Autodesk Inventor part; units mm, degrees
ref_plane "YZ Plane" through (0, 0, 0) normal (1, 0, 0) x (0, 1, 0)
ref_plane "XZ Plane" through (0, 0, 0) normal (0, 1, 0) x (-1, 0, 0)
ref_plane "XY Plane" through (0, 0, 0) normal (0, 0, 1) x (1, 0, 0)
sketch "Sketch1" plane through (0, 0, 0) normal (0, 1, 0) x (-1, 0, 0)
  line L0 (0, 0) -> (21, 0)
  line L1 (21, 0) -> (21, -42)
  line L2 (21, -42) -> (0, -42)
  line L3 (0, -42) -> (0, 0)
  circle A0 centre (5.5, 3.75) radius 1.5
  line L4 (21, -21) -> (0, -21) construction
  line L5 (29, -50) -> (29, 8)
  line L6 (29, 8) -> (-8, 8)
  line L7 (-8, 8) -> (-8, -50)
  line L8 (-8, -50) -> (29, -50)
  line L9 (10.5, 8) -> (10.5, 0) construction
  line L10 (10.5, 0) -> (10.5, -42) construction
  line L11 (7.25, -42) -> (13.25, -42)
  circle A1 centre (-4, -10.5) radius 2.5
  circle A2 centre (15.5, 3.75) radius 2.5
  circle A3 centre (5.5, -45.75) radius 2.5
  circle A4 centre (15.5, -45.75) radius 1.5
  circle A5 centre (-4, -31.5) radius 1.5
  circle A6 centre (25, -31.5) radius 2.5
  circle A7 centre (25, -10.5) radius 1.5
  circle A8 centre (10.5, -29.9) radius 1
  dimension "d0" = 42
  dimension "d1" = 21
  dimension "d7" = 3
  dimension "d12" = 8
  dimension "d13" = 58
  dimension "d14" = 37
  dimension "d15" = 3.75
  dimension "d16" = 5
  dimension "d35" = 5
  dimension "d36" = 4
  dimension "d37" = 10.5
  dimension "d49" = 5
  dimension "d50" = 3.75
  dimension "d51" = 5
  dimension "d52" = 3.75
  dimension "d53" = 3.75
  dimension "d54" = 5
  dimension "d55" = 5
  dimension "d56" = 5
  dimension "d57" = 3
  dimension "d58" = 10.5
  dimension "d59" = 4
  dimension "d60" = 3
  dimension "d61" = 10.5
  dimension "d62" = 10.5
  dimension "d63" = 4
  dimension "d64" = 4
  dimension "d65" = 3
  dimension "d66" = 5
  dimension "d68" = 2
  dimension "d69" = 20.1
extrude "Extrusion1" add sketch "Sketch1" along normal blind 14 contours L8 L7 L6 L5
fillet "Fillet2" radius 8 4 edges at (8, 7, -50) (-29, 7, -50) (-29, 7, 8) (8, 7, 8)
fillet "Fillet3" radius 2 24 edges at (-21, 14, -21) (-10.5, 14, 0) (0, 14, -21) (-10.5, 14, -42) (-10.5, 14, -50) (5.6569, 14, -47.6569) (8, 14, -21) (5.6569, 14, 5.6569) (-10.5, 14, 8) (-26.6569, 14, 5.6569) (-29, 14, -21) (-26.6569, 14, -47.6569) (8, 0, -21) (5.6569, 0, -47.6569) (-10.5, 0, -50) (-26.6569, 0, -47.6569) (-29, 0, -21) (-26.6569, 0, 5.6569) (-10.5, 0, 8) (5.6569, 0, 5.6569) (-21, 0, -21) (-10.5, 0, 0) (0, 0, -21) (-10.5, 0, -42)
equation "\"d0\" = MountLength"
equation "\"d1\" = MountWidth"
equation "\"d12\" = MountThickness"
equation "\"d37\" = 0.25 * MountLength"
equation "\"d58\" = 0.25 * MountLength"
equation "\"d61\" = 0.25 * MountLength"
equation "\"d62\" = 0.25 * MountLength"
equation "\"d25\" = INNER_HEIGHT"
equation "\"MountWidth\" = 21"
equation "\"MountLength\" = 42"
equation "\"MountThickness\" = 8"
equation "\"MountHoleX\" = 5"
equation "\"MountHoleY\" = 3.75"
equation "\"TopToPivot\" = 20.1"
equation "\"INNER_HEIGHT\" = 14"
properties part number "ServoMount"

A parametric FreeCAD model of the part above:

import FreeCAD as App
import Part
import Sketcher
from FreeCAD import Vector


def edges_at(feature, points):
    """Names of the edges that pass closest to the given points."""
    edges = feature.Shape.Edges
    near = lambda p: min(range(len(edges)), key=lambda i: edges[i].distToShape(Part.Vertex(*p))[0])
    return sorted({f"Edge{near(p) + 1}" for p in points})

doc = App.newDocument("Part")
body = doc.addObject("PartDesign::Body", "Body")

# Sketch on XZ plane
sketch1 = doc.addObject("Sketcher::SketchObject", "Sketch")
body.addObject(sketch1)
sketch1.AttachmentSupport = (doc.XZ_Plane, [""])
sketch1.MapMode = "FlatFace"
sketch1.addGeometry(Part.LineSegment(Vector(8, -50, 0), Vector(-29, -50, 0)), False)
sketch1.addGeometry(Part.LineSegment(Vector(-29, -50, 0), Vector(-29, 8, 0)), False)
sketch1.addGeometry(Part.LineSegment(Vector(-29, 8, 0), Vector(8, 8, 0)), False)
sketch1.addGeometry(Part.LineSegment(Vector(8, 8, 0), Vector(8, -50, 0)), False)
sketch1.addGeometry(Part.Circle(Vector(-5.5, -45.8, 0), Vector(0, 0, 1), 2.5), False)
sketch1.addGeometry(Part.Circle(Vector(4, -31.5, 0), Vector(0, 0, 1), 1.5), False)
sketch1.addGeometry(Part.Circle(Vector(-15.5, -45.8, 0), Vector(0, 0, 1), 1.5), False)
sketch1.addGeometry(Part.Circle(Vector(-25, -31.5, 0), Vector(0, 0, 1), 2.5), False)
sketch1.addGeometry(Part.Circle(Vector(4, -10.5, 0), Vector(0, 0, 1), 2.5), False)
sketch1.addGeometry(Part.Circle(Vector(-5.5, 3.8, 0), Vector(0, 0, 1), 1.5), False)
sketch1.addGeometry(Part.LineSegment(Vector(0, -42, 0), Vector(0, 0, 0)), False)
sketch1.addGeometry(Part.LineSegment(Vector(0, 0, 0), Vector(-21, 0, 0)), False)
sketch1.addGeometry(Part.LineSegment(Vector(-21, 0, 0), Vector(-21, -42, 0)), False)
sketch1.addGeometry(Part.LineSegment(Vector(-21, -42, 0), Vector(0, -42, 0)), False)
sketch1.addGeometry(Part.Circle(Vector(-25, -10.5, 0), Vector(0, 0, 1), 1.5), False)
sketch1.addGeometry(Part.Circle(Vector(-15.5, 3.8, 0), Vector(0, 0, 1), 2.5), False)
sketch1.addConstraint(Sketcher.Constraint("Coincident", 0, 2, 1, 1))
sketch1.addConstraint(Sketcher.Constraint("Coincident", 1, 2, 2, 1))
sketch1.addConstraint(Sketcher.Constraint("Coincident", 2, 2, 3, 1))
sketch1.addConstraint(Sketcher.Constraint("Coincident", 3, 2, 0, 1))
sketch1.addConstraint(Sketcher.Constraint("Coincident", 10, 2, 11, 1))
sketch1.addConstraint(Sketcher.Constraint("Coincident", 11, 2, 12, 1))
sketch1.addConstraint(Sketcher.Constraint("Coincident", 12, 2, 13, 1))
sketch1.addConstraint(Sketcher.Constraint("Coincident", 13, 2, 10, 1))
sketch1.addConstraint(Sketcher.Constraint("Horizontal", 0))
sketch1.addConstraint(Sketcher.Constraint("Vertical", 1))
sketch1.addConstraint(Sketcher.Constraint("Horizontal", 2))
sketch1.addConstraint(Sketcher.Constraint("Vertical", 3))
sketch1.addConstraint(Sketcher.Constraint("Vertical", 10))
sketch1.addConstraint(Sketcher.Constraint("Horizontal", 11))
sketch1.addConstraint(Sketcher.Constraint("Vertical", 12))
sketch1.addConstraint(Sketcher.Constraint("Horizontal", 13))
sketch1.addConstraint(Sketcher.Constraint("Coincident", 10, 2, -1, 1))
sketch1.addConstraint(Sketcher.Constraint("Equal", 5, 6))
sketch1.addConstraint(Sketcher.Constraint("Equal", 4, 7))
sketch1.addConstraint(Sketcher.Constraint("Equal", 7, 8))
sketch1.addConstraint(Sketcher.Constraint("Equal", 6, 9))
sketch1.addConstraint(Sketcher.Constraint("Equal", 9, 14))
sketch1.addConstraint(Sketcher.Constraint("Equal", 8, 15))
sketch1.addConstraint(Sketcher.Constraint("Horizontal", 4, 3, 6, 3))
sketch1.addConstraint(Sketcher.Constraint("Horizontal", 5, 3, 7, 3))
sketch1.addConstraint(Sketcher.Constraint("Horizontal", 8, 3, 14, 3))
sketch1.addConstraint(Sketcher.Constraint("Horizontal", 9, 3, 15, 3))
sketch1.addConstraint(Sketcher.Constraint("Vertical", 5, 3, 8, 3))
sketch1.addConstraint(Sketcher.Constraint("Vertical", 4, 3, 9, 3))
sketch1.addConstraint(Sketcher.Constraint("Vertical", 7, 3, 14, 3))
sketch1.addConstraint(Sketcher.Constraint("Vertical", 6, 3, 15, 3))
sketch1.addConstraint(Sketcher.Constraint("Diameter", 4, 5.0))
sketch1.addConstraint(Sketcher.Constraint("Diameter", 5, 3.0))
sketch1.addConstraint(Sketcher.Constraint("DistanceX", 0, 2, 0, 1, 37.0))
sketch1.addConstraint(Sketcher.Constraint("DistanceX", 11, 2, 11, 1, 21.0))
sketch1.addConstraint(Sketcher.Constraint("DistanceY", 1, 1, 1, 2, 58.0))
sketch1.addConstraint(Sketcher.Constraint("DistanceY", 10, 1, 10, 2, 42.0))
sketch1.addConstraint(Sketcher.Constraint("DistanceX", -1, 1, 5, 3, 4.0))
sketch1.addConstraint(Sketcher.Constraint("DistanceY", -1, 1, 1, 2, 8.0))
sketch1.addConstraint(Sketcher.Constraint("DistanceX", -1, 1, 2, 2, 8.0))
sketch1.addConstraint(Sketcher.Constraint("DistanceY", 5, 3, 8, 3, 21.0))
sketch1.addConstraint(Sketcher.Constraint("DistanceX", 0, 2, 7, 3, 4.0))
sketch1.addConstraint(Sketcher.Constraint("DistanceY", 8, 3, -1, 1, 10.5))
sketch1.addConstraint(Sketcher.Constraint("DistanceY", -1, 1, 9, 3, 3.75))
sketch1.addConstraint(Sketcher.Constraint("DistanceY", 6, 3, 12, 2, 3.75))
sketch1.addConstraint(Sketcher.Constraint("DistanceX", 6, 3, 4, 3, 10.0))
sketch1.addConstraint(Sketcher.Constraint("DistanceX", 4, 3, -1, 1, 5.5))
pad1 = doc.addObject("PartDesign::Pad", "Pad")
body.addObject(pad1)
pad1.Profile = sketch1
pad1.Length = 14
pad1.Reversed = True
doc.recompute()

fillet = doc.addObject("PartDesign::Fillet", "Fillet")
body.addObject(fillet)
fillet.Base = (pad1, edges_at(pad1, [
    (8, 7, -50),
    (-29, 7, -50),
    (-29, 7, 8),
    (8, 7, 8),
]))
fillet.Radius = 8
doc.recompute()

fillet2 = doc.addObject("PartDesign::Fillet", "Fillet001")
body.addObject(fillet2)
fillet2.Base = (fillet, edges_at(fillet, [
    (-21, 14, -21),
    (-10.5, 14, 0),
    (0, 14, -21),
    (-10.5, 14, -42),
    (-10.5, 14, -50),
    (5.657, 14, -47.657),
    (8, 14, -21),
    (5.657, 14, 5.657),
    (-10.5, 14, 8),
    (-26.657, 14, 5.657),
    (-29, 14, -21),
    (-26.657, 14, -47.657),
    (8, 0, -21),
    (5.657, 0, -47.657),
    (-10.5, 0, -50),
    (-26.657, 0, -47.657),
    (-29, 0, -21),
    (-26.657, 0, 5.657),
    (-10.5, 0, 8),
    (5.657, 0, 5.657),
    (-21, 0, -21),
    (-10.5, 0, 0),
    (0, 0, -21),
    (-10.5, 0, -42),
]))
fillet2.Radius = 2

doc.recompute()
